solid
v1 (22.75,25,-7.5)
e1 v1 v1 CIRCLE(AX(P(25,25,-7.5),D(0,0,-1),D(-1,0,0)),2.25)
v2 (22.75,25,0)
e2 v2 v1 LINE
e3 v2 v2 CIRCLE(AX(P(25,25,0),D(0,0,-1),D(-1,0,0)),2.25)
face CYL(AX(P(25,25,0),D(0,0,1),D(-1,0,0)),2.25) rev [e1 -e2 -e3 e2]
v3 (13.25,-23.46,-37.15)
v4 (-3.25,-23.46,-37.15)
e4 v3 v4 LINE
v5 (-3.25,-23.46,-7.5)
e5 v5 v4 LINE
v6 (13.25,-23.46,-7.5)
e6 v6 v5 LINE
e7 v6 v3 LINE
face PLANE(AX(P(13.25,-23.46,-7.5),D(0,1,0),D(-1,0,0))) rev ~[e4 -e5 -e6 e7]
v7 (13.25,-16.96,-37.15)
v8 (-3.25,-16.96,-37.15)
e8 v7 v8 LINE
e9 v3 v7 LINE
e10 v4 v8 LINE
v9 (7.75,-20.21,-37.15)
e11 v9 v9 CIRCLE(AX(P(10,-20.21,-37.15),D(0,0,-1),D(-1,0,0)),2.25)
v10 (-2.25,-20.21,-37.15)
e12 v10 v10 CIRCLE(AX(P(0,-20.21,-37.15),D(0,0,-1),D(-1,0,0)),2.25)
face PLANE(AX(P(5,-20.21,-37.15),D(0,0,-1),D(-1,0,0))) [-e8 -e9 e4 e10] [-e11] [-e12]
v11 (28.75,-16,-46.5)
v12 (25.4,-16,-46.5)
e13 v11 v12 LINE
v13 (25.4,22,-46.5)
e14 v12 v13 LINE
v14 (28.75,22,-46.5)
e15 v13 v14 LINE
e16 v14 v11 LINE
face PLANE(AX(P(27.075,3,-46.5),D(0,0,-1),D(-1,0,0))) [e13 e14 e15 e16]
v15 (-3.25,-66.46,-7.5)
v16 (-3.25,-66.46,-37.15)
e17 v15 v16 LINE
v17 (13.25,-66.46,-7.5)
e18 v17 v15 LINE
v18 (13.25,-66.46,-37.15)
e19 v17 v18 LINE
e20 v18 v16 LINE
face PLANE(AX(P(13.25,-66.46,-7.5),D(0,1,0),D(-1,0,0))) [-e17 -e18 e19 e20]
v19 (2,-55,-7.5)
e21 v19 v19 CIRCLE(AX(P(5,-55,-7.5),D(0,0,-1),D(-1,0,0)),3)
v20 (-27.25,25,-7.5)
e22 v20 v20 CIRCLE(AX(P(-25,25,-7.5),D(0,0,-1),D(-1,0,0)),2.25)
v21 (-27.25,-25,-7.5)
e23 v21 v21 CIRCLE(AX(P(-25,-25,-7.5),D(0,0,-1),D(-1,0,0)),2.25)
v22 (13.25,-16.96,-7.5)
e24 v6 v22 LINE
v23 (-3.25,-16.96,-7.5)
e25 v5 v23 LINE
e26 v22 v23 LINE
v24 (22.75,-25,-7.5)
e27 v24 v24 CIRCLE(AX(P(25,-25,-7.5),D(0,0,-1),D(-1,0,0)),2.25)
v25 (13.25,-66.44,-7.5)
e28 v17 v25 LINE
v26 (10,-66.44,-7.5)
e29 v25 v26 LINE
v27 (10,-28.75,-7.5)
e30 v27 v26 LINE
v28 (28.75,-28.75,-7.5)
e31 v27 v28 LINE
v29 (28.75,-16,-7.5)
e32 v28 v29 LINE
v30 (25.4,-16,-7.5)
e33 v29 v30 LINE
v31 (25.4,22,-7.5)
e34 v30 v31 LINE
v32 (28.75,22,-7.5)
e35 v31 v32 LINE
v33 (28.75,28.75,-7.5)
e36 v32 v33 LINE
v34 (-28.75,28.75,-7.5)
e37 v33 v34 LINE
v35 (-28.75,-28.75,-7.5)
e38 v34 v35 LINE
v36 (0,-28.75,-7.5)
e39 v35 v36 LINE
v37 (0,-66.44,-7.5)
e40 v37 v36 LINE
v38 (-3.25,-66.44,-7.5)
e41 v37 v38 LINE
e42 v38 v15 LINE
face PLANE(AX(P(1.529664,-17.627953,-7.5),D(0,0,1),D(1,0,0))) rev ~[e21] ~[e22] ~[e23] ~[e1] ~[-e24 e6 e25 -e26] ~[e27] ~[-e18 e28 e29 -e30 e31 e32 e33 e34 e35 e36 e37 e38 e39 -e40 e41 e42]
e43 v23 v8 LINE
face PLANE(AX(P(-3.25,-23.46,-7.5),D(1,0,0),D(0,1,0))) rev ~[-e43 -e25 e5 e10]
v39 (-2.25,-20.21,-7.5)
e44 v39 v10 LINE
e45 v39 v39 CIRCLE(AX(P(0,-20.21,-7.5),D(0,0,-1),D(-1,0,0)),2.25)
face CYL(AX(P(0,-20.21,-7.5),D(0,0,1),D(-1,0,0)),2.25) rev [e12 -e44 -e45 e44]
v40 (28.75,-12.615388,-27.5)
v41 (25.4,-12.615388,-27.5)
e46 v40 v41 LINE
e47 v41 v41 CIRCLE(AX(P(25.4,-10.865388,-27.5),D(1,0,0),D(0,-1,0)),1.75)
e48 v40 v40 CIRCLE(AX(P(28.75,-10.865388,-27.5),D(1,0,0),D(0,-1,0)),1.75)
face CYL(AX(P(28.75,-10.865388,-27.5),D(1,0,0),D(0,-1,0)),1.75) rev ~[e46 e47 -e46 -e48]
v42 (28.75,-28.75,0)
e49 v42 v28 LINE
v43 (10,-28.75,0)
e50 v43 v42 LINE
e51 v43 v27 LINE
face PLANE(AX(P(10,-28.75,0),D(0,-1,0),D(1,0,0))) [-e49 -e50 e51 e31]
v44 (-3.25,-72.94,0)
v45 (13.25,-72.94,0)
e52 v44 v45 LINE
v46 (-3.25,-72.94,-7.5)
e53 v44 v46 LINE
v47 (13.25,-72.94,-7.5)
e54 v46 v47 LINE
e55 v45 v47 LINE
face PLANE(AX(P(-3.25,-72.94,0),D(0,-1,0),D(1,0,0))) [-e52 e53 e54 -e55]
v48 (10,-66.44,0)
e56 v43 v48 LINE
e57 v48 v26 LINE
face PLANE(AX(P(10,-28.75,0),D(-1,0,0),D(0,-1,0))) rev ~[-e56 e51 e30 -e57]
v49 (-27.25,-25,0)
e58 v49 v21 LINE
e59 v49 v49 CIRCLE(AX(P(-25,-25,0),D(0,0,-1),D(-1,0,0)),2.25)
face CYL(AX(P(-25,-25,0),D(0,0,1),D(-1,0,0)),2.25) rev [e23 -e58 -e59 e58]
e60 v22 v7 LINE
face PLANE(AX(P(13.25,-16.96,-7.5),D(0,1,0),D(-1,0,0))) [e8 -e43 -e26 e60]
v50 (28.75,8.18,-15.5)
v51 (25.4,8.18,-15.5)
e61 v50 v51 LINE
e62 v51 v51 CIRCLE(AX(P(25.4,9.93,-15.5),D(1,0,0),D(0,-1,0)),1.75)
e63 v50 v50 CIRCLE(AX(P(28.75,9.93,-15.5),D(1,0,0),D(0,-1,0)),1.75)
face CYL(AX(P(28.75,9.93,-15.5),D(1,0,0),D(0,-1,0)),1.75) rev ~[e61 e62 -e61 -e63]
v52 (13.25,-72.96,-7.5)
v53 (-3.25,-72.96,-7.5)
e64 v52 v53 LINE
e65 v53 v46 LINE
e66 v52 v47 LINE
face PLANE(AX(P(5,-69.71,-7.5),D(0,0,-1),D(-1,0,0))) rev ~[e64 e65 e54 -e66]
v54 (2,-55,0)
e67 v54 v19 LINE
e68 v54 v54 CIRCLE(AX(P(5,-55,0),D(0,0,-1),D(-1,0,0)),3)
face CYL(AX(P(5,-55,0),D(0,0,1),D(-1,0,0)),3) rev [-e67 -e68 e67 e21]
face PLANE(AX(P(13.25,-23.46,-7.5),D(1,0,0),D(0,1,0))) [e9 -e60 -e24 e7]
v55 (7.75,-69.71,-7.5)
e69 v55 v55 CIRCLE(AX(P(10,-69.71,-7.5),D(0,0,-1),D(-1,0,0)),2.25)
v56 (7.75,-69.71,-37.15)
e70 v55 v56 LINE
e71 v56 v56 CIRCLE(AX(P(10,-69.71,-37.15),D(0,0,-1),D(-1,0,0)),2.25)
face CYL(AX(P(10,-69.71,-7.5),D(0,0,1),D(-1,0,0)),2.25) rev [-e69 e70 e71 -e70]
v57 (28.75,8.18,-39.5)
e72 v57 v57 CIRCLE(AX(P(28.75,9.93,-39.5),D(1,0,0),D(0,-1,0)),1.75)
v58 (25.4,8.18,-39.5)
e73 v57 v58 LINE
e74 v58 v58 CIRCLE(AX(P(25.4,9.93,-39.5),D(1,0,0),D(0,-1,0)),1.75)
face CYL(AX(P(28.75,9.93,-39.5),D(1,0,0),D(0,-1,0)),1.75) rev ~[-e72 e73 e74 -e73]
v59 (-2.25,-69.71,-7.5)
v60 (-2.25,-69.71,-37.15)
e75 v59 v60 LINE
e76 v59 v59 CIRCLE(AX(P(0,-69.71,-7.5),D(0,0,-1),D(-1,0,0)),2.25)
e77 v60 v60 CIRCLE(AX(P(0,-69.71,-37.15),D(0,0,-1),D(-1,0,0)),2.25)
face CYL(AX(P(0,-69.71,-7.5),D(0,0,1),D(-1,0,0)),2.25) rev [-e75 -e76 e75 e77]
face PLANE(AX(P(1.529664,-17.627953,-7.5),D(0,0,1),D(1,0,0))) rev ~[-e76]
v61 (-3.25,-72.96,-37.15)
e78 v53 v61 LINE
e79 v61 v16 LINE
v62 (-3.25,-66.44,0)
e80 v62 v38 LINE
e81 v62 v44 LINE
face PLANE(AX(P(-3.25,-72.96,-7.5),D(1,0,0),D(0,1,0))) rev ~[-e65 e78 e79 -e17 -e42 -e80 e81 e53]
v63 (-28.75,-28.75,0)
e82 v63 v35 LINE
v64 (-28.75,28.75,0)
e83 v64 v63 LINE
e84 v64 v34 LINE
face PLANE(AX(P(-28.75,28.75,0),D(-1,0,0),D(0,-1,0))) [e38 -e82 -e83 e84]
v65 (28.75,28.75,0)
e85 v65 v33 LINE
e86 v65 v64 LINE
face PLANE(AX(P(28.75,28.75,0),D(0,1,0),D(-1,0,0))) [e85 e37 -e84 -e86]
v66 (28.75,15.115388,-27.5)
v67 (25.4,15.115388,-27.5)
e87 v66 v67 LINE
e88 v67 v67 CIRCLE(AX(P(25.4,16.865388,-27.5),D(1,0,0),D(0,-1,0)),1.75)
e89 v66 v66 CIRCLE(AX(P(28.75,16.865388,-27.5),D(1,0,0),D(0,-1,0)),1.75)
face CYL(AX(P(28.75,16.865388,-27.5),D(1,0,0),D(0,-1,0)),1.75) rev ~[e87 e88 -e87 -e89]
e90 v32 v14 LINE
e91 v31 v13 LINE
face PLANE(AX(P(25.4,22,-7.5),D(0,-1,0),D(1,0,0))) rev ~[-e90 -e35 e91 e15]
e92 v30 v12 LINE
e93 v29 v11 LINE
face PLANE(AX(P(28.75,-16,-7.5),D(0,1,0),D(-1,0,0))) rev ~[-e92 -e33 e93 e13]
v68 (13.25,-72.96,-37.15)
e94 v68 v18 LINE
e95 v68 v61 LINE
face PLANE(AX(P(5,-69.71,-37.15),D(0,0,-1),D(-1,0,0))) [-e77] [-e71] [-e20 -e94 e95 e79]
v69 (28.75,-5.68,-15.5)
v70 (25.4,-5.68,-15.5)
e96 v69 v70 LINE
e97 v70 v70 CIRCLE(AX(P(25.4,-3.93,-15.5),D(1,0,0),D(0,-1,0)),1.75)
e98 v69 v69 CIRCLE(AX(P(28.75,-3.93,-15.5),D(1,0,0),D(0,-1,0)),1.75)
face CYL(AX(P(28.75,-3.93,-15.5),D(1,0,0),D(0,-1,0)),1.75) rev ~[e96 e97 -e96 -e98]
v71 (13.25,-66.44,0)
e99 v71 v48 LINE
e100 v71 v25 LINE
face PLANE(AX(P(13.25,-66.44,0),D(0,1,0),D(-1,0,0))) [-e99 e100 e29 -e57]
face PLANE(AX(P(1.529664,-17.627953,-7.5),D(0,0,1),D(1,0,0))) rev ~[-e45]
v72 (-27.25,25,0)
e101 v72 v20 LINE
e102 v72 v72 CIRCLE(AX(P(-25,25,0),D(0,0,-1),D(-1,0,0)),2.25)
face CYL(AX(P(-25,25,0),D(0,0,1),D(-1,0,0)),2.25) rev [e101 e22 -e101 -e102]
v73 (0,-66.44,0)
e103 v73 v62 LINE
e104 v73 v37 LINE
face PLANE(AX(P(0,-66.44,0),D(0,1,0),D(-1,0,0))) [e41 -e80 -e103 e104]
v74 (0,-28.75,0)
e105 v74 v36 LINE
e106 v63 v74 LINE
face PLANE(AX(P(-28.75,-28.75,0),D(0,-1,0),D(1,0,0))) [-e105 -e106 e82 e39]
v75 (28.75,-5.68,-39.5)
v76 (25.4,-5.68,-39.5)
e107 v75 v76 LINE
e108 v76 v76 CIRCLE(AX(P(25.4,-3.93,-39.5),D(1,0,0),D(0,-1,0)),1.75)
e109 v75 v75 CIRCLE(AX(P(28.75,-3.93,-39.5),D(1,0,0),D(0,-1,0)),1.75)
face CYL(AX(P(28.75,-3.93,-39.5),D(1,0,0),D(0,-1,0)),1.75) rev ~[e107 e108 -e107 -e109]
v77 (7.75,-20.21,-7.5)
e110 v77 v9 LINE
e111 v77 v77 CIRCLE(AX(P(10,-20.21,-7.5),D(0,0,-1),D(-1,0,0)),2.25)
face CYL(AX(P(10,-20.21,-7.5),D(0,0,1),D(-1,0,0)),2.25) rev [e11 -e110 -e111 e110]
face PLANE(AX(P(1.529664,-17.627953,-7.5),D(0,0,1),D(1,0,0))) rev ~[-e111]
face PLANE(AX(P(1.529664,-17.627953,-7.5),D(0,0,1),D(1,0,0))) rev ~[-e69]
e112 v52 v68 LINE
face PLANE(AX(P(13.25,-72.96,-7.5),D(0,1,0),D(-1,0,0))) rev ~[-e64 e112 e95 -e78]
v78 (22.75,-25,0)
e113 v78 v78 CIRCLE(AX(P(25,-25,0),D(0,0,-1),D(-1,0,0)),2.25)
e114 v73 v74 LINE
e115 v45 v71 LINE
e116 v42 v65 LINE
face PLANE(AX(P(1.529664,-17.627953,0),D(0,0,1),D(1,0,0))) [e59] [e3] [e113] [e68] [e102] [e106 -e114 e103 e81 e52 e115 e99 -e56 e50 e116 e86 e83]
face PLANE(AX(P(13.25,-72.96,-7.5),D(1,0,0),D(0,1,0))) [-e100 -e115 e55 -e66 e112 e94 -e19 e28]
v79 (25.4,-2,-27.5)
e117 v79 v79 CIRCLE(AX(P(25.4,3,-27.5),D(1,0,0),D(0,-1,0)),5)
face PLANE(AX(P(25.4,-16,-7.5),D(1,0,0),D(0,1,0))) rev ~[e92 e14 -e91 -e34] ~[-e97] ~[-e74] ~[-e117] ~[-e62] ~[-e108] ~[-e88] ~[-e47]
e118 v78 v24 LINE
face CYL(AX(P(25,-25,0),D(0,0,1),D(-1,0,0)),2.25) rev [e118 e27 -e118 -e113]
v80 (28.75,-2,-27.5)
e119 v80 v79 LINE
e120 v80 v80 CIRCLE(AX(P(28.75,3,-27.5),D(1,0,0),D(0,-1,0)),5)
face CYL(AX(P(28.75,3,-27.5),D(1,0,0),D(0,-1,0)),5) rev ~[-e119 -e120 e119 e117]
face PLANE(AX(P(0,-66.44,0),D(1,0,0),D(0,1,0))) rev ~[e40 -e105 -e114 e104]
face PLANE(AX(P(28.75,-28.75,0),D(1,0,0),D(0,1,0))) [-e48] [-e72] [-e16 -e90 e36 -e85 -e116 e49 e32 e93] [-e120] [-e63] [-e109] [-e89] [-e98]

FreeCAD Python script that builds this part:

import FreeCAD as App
import Part
import Sketcher
Q = App.Units.Quantity


def add_polygon(sketch, points):
    """Adds a closed chain of lines whose ends are joined by coincident constraints."""
    first, n = sketch.GeometryCount, len(points)
    for a, b in zip(points, points[1:] + points[:1]):
        sketch.addGeometry(Part.LineSegment(App.Vector(*a, 0), App.Vector(*b, 0)), False)
    for i in range(n):
        sketch.addConstraint(Sketcher.Constraint("Coincident", first + i, 2, first + (i + 1) % n, 1))

doc = App.newDocument("Part")
body = doc.addObject("PartDesign::Body", "Body")

# Sketch on XY plane
sketch1 = body.newObject("Sketcher::SketchObject", "Sketch")
sketch1.AttachmentSupport = (doc.getObject("XY_Plane"), [""])
sketch1.MapMode = "FlatFace"
add_polygon(sketch1, [(0, -66.44), (0, -28.75), (28.75, -28.75), (28.75, 28.75), (-28.75, 28.75), (-28.75, -28.75), (-10, -28.75), (-10, -66.44), (-13.25, -66.44), (-13.25, -72.94), (3.25, -72.94), (3.25, -66.44)])  # lines 0-11
sketch1.addGeometry(Part.Circle(App.Vector(25, -25, 0), App.Vector(0, 0, 1), 2.25), False)  # 12
sketch1.addGeometry(Part.Circle(App.Vector(-5, -55, 0), App.Vector(0, 0, 1), 3), False)  # 13
sketch1.addGeometry(Part.Circle(App.Vector(-25, -25, 0), App.Vector(0, 0, 1), 2.25), False)  # 14
sketch1.addGeometry(Part.Circle(App.Vector(25, 25, 0), App.Vector(0, 0, 1), 2.25), False)  # 15
sketch1.addGeometry(Part.Circle(App.Vector(-25, 25, 0), App.Vector(0, 0, 1), 2.25), False)  # 16
sketch1.addConstraint(Sketcher.Constraint("Vertical", 0))
sketch1.addConstraint(Sketcher.Constraint("Horizontal", 1))
sketch1.addConstraint(Sketcher.Constraint("Vertical", 2))
sketch1.addConstraint(Sketcher.Constraint("Horizontal", 3))
sketch1.addConstraint(Sketcher.Constraint("Vertical", 4))
sketch1.addConstraint(Sketcher.Constraint("Horizontal", 5))
sketch1.addConstraint(Sketcher.Constraint("Vertical", 6))
sketch1.addConstraint(Sketcher.Constraint("Horizontal", 7))
sketch1.addConstraint(Sketcher.Constraint("Vertical", 8))
sketch1.addConstraint(Sketcher.Constraint("Horizontal", 9))
sketch1.addConstraint(Sketcher.Constraint("Vertical", 10))
sketch1.addConstraint(Sketcher.Constraint("Horizontal", 11))
sketch1.addConstraint(Sketcher.Constraint("Equal", 12, 14))
sketch1.addConstraint(Sketcher.Constraint("Equal", 14, 15))
sketch1.addConstraint(Sketcher.Constraint("Equal", 15, 16))
sketch1.addConstraint(Sketcher.Constraint("Symmetric", 14, 3, 15, 3, -1, 1))
sketch1.addConstraint(Sketcher.Constraint("Symmetric", 12, 3, 16, 3, -1, 1))
sketch1.addConstraint(Sketcher.Constraint("Symmetric", 1, 2, 3, 2, -1, 1))
sketch1.addConstraint(Sketcher.Constraint("Symmetric", 12, 3, 14, 3, -2))
sketch1.addConstraint(Sketcher.Constraint("PointOnObject", 0, 2, -2))
sketch1.addConstraint(Sketcher.Constraint("Horizontal", 1, 2, 4, 2))
sketch1.addConstraint(Sketcher.Constraint("Horizontal", 7, 2, 10, 2))
sketch1.addConstraint(Sketcher.Constraint("Equal", 7, 11))
sketch1.addConstraint(Sketcher.Constraint("Equal", 3, 2))
sketch1.addConstraint(Sketcher.Constraint("Diameter", 13, Q("6 mm")))
sketch1.addConstraint(Sketcher.Constraint("Diameter", 12, Q("4.5 mm")))
sketch1.addConstraint(Sketcher.Constraint("DistanceX", 3, 2, 3, 1, Q("57.5 mm")))
sketch1.addConstraint(Sketcher.Constraint("DistanceX", 9, 1, 9, 2, Q("16.5 mm")))
sketch1.addConstraint(Sketcher.Constraint("DistanceY", 8, 2, 8, 1, Q("6.5 mm")))
sketch1.addConstraint(Sketcher.Constraint("DistanceX", -1, 1, 12, 3, Q("25 mm")))
sketch1.addConstraint(Sketcher.Constraint("DistanceY", 12, 3, -1, 1, Q("25 mm")))
sketch1.addConstraint(Sketcher.Constraint("DistanceX", 13, 3, -1, 1, Q("5 mm")))
sketch1.addConstraint(Sketcher.Constraint("DistanceY", 13, 3, -1, 1, Q("55 mm")))
sketch1.addConstraint(Sketcher.Constraint("DistanceX", 5, 2, -1, 1, Q("10 mm")))
sketch1.addConstraint(Sketcher.Constraint("DistanceY", 0, 1, 0, 2, Q("37.69 mm")))
pad1 = body.newObject("PartDesign::Pad", "Pad")
pad1.Profile = sketch1
pad1.Length = 7.5

# Sketch on XY plane
sketch2 = body.newObject("Sketcher::SketchObject", "Sketch001")
sketch2.AttachmentSupport = (doc.getObject("XY_Plane"), [""])
sketch2.MapMode = "FlatFace"
sketch2.AttachmentOffset = App.Placement(App.Vector(0, 0, 7.5), App.Rotation())
add_polygon(sketch2, [(-13.25, -16.96), (-13.25, -23.46), (3.25, -23.46), (3.25, -16.96)])  # lines 0-3
sketch2.addGeometry(Part.Circle(App.Vector(-10, -20.21, 0), App.Vector(0, 0, 1), 2.25), False)  # 4
sketch2.addGeometry(Part.Circle(App.Vector(0, -20.21, 0), App.Vector(0, 0, 1), 2.25), False)  # 5
add_polygon(sketch2, [(-13.25, -66.46), (-13.25, -72.96), (3.25, -72.96), (3.25, -66.46)])  # lines 6-9
sketch2.addGeometry(Part.Circle(App.Vector(-10, -69.71, 0), App.Vector(0, 0, 1), 2.25), False)  # 10
sketch2.addGeometry(Part.Circle(App.Vector(0, -69.71, 0), App.Vector(0, 0, 1), 2.25), False)  # 11
sketch2.addConstraint(Sketcher.Constraint("Vertical", 0))
sketch2.addConstraint(Sketcher.Constraint("Horizontal", 1))
sketch2.addConstraint(Sketcher.Constraint("Vertical", 2))
sketch2.addConstraint(Sketcher.Constraint("Horizontal", 3))
sketch2.addConstraint(Sketcher.Constraint("Vertical", 6))
sketch2.addConstraint(Sketcher.Constraint("Horizontal", 7))
sketch2.addConstraint(Sketcher.Constraint("Vertical", 8))
sketch2.addConstraint(Sketcher.Constraint("Horizontal", 9))
sketch2.addConstraint(Sketcher.Constraint("Equal", 4, 5))
sketch2.addConstraint(Sketcher.Constraint("Equal", 5, 10))
sketch2.addConstraint(Sketcher.Constraint("Equal", 10, 11))
sketch2.addConstraint(Sketcher.Constraint("PointOnObject", 5, 3, -2))
sketch2.addConstraint(Sketcher.Constraint("PointOnObject", 11, 3, -2))
sketch2.addConstraint(Sketcher.Constraint("Horizontal", 4, 3, 5, 3))
sketch2.addConstraint(Sketcher.Constraint("Horizontal", 10, 3, 11, 3))
sketch2.addConstraint(Sketcher.Constraint("Vertical", 4, 3, 10, 3))
sketch2.addConstraint(Sketcher.Constraint("Vertical", 3, 2, 6, 2))
sketch2.addConstraint(Sketcher.Constraint("Vertical", 2, 2, 7, 2))
sketch2.addConstraint(Sketcher.Constraint("Equal", 2, 6))
sketch2.addConstraint(Sketcher.Constraint("Diameter", 4, Q("4.5 mm")))
sketch2.addConstraint(Sketcher.Constraint("DistanceX", 1, 1, 1, 2, Q("16.5 mm")))
sketch2.addConstraint(Sketcher.Constraint("DistanceY", 0, 2, 0, 1, Q("6.5 mm")))
sketch2.addConstraint(Sketcher.Constraint("DistanceX", 4, 3, -1, 1, Q("10 mm")))
sketch2.addConstraint(Sketcher.Constraint("DistanceY", 8, 2, 1, 2, Q("43 mm")))
sketch2.addConstraint(Sketcher.Constraint("DistanceY", 10, 3, 4, 3, Q("49.5 mm")))
sketch2.addConstraint(Sketcher.Constraint("DistanceY", 4, 3, -1, 1, Q("20.21 mm")))
sketch2.addConstraint(Sketcher.Constraint("DistanceX", 0, 2, -1, 1, Q("13.25 mm")))
sketch2.addConstraint(Sketcher.Constraint("DistanceY", 0, 2, -1, 1, Q("23.46 mm")))
pad2 = body.newObject("PartDesign::Pad", "Pad001")
pad2.Profile = sketch2
pad2.Length = 29.65

# Sketch on XY plane
sketch3 = body.newObject("Sketcher::SketchObject", "Sketch002")
sketch3.AttachmentSupport = (doc.getObject("XY_Plane"), [""])
sketch3.MapMode = "FlatFace"
sketch3.AttachmentOffset = App.Placement(App.Vector(0, 0, 7.5), App.Rotation())
add_polygon(sketch3, [(-25.4, 22), (-28.75, 22), (-28.75, -16), (-25.4, -16)])  # lines 0-3
sketch3.addConstraint(Sketcher.Constraint("Horizontal", 0))
sketch3.addConstraint(Sketcher.Constraint("Vertical", 1))
sketch3.addConstraint(Sketcher.Constraint("Horizontal", 2))
sketch3.addConstraint(Sketcher.Constraint("Vertical", 3))
sketch3.addConstraint(Sketcher.Constraint("DistanceY", 1, 2, 1, 1, Q("38 mm")))
sketch3.addConstraint(Sketcher.Constraint("DistanceY", -1, 1, 0, 2, Q("22 mm")))
sketch3.addConstraint(Sketcher.Constraint("DistanceX", 0, 2, 0, 1, Q("3.35 mm")))
sketch3.addConstraint(Sketcher.Constraint("DistanceX", 2, 2, -1, 1, Q("25.4 mm")))
pad3 = body.newObject("PartDesign::Pad", "Pad002")
pad3.Profile = sketch3
pad3.Length = 39

# Sketch on YZ plane
sketch4 = body.newObject("Sketcher::SketchObject", "Sketch003")
sketch4.AttachmentSupport = (doc.getObject("YZ_Plane"), [""])
sketch4.MapMode = "FlatFace"
sketch4.AttachmentOffset = App.Placement(App.Vector(0, 0, -28.75), App.Rotation())
sketch4.addGeometry(Part.Circle(App.Vector(3, 27.5, 0), App.Vector(0, 0, 1), 5), False)
sketch4.addGeometry(Part.Circle(App.Vector(-3.93, 39.5, 0), App.Vector(0, 0, 1), 1.75), False)
sketch4.addGeometry(Part.Circle(App.Vector(9.93, 39.5, 0), App.Vector(0, 0, 1), 1.75), False)
sketch4.addGeometry(Part.Circle(App.Vector(9.93, 15.5, 0), App.Vector(0, 0, 1), 1.75), False)
sketch4.addGeometry(Part.Circle(App.Vector(-3.93, 15.5, 0), App.Vector(0, 0, 1), 1.75), False)
sketch4.addGeometry(Part.Circle(App.Vector(16.865388, 27.5, 0), App.Vector(0, 0, 1), 1.75), False)
sketch4.addGeometry(Part.Circle(App.Vector(-10.865388, 27.5, 0), App.Vector(0, 0, 1), 1.75), False)
sketch4.addConstraint(Sketcher.Constraint("Equal", 1, 2))
sketch4.addConstraint(Sketcher.Constraint("Equal", 2, 3))
sketch4.addConstraint(Sketcher.Constraint("Equal", 3, 4))
sketch4.addConstraint(Sketcher.Constraint("Equal", 4, 5))
sketch4.addConstraint(Sketcher.Constraint("Equal", 5, 6))
sketch4.addConstraint(Sketcher.Constraint("Horizontal", 1, 3, 2, 3))
sketch4.addConstraint(Sketcher.Constraint("Horizontal", 3, 3, 4, 3))
sketch4.addConstraint(Sketcher.Constraint("Horizontal", 0, 3, 5, 3))
sketch4.addConstraint(Sketcher.Constraint("Horizontal", 5, 3, 6, 3))
sketch4.addConstraint(Sketcher.Constraint("Vertical", 2, 3, 3, 3))
sketch4.addConstraint(Sketcher.Constraint("Vertical", 1, 3, 4, 3))
sketch4.addConstraint(Sketcher.Constraint("Diameter", 0, Q("10 mm")))
sketch4.addConstraint(Sketcher.Constraint("Diameter", 1, Q("3.5 mm")))
sketch4.addConstraint(Sketcher.Constraint("DistanceX", -1, 1, 0, 3, Q("3 mm")))
sketch4.addConstraint(Sketcher.Constraint("DistanceY", 0, 3, 1, 3, Q("12 mm")))
sketch4.addConstraint(Sketcher.Constraint("DistanceY", 3, 3, 0, 3, Q("12 mm")))
sketch4.addConstraint(Sketcher.Constraint("DistanceY", -1, 1, 0, 3, Q("27.5 mm")))
sketch4.addConstraint(Sketcher.Constraint("DistanceX", 1, 3, -1, 1, Q("3.93 mm")))
sketch4.addConstraint(Sketcher.Constraint("DistanceX", -1, 1, 2, 3, Q("9.93 mm")))
sketch4.addConstraint(Sketcher.Constraint("DistanceX", -1, 1, 5, 3, Q("16.865388 mm")))
sketch4.addConstraint(Sketcher.Constraint("DistanceX", 6, 3, -1, 1, Q("10.865388 mm")))
pocket1 = body.newObject("PartDesign::Pocket", "Pocket")
pocket1.Profile = sketch4
pocket1.Length = 5
pocket1.Reversed = True
body2 = doc.addObject("PartDesign::Body", "Body001")
doc.recompute()

body.Placement = App.Placement(App.Vector(0, 0, 0), App.Rotation(App.Vector(0, 1, 0), 180))
boolean = body2.newObject("PartDesign::Boolean", "Boolean")
boolean.Type = "Fuse"
boolean.addObjects([body])

doc.recompute()
